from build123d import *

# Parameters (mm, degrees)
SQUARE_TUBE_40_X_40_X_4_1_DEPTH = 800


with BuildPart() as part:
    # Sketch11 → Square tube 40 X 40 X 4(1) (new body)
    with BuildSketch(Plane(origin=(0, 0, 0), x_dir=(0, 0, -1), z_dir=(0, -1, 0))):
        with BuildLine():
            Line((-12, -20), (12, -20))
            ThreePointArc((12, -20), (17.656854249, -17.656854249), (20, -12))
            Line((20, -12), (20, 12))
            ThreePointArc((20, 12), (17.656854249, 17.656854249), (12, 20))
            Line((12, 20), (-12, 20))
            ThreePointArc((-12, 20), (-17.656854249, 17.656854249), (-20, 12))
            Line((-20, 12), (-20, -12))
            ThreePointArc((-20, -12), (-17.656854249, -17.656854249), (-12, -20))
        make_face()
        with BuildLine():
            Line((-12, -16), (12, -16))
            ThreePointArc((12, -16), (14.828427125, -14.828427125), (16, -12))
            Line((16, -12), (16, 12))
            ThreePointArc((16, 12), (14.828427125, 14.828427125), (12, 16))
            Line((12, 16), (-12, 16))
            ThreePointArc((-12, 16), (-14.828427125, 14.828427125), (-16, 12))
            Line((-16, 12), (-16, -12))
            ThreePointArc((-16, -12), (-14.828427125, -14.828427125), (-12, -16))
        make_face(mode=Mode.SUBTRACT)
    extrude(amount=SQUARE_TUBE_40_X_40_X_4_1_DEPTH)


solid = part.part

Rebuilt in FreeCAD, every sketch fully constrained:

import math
import FreeCAD as App
import Part
import Sketcher

V = App.Vector
Q = App.Units.Quantity

doc = App.newDocument("Part")
body = doc.addObject("PartDesign::Body", "Body")

# Sketch on XZ plane
sketch1 = body.newObject("Sketcher::SketchObject", "Sketch")
sketch1.AttachmentSupport = (doc.getObject("XZ_Plane"), [""])
sketch1.MapMode = "FlatFace"
sketch1.addGeometry([
    Part.LineSegment(V(-20, 12, 0), V(-20, -12, 0)),  # 0
    Part.ArcOfCircle(Part.Circle(V(-12, -12, 0), V(0, 0, 1), 8), math.radians(-180), math.radians(-90)),  # 1
    Part.LineSegment(V(-12, -20, 0), V(12, -20, 0)),  # 2
    Part.ArcOfCircle(Part.Circle(V(12, -12, 0), V(0, 0, 1), 8), math.radians(-90), math.radians(0)),  # 3
    Part.LineSegment(V(20, -12, 0), V(20, 12, 0)),  # 4
    Part.ArcOfCircle(Part.Circle(V(12, 12, 0), V(0, 0, 1), 8), math.radians(0), math.radians(90)),  # 5
    Part.LineSegment(V(12, 20, 0), V(-12, 20, 0)),  # 6
    Part.ArcOfCircle(Part.Circle(V(-12, 12, 0), V(0, 0, 1), 8), math.radians(90), math.radians(180)),  # 7
    Part.LineSegment(V(-16, -12, 0), V(-16, 12, 0)),  # 8
    Part.ArcOfCircle(Part.Circle(V(-12, 12, 0), V(0, 0, 1), 4), math.radians(90), math.radians(180)),  # 9
    Part.LineSegment(V(-12, 16, 0), V(12, 16, 0)),  # 10
    Part.ArcOfCircle(Part.Circle(V(12, 12, 0), V(0, 0, 1), 4), math.radians(0), math.radians(90)),  # 11
    Part.LineSegment(V(16, 12, 0), V(16, -12, 0)),  # 12
    Part.ArcOfCircle(Part.Circle(V(12, -12, 0), V(0, 0, 1), 4), math.radians(-90), math.radians(0)),  # 13
    Part.LineSegment(V(12, -16, 0), V(-12, -16, 0)),  # 14
    Part.ArcOfCircle(Part.Circle(V(-12, -12, 0), V(0, 0, 1), 4), math.radians(180), math.radians(270)),  # 15
], False)
sketch1.addConstraint([
    Sketcher.Constraint("Tangent", 0, 2, 1, 1),
    Sketcher.Constraint("Tangent", 1, 2, 2, 1),
    Sketcher.Constraint("Tangent", 2, 2, 3, 1),
    Sketcher.Constraint("Tangent", 3, 2, 4, 1),
    Sketcher.Constraint("Tangent", 4, 2, 5, 1),
    Sketcher.Constraint("Tangent", 5, 2, 6, 1),
    Sketcher.Constraint("Tangent", 6, 2, 7, 1),
    Sketcher.Constraint("Tangent", 7, 2, 0, 1),
    Sketcher.Constraint("Tangent", 8, 2, 9, 2),
    Sketcher.Constraint("Tangent", 9, 1, 10, 1),
    Sketcher.Constraint("Tangent", 10, 2, 11, 2),
    Sketcher.Constraint("Tangent", 11, 1, 12, 1),
    Sketcher.Constraint("Tangent", 12, 2, 13, 2),
    Sketcher.Constraint("Tangent", 13, 1, 14, 1),
    Sketcher.Constraint("Tangent", 14, 2, 15, 2),
    Sketcher.Constraint("Tangent", 15, 1, 8, 1),
    Sketcher.Constraint("Vertical", 0),
    Sketcher.Constraint("Horizontal", 2),
    Sketcher.Constraint("Vertical", 4),
    Sketcher.Constraint("Horizontal", 6),
    Sketcher.Constraint("Vertical", 8),
    Sketcher.Constraint("Horizontal", 10),
    Sketcher.Constraint("Vertical", 12),
    Sketcher.Constraint("Horizontal", 14),
    Sketcher.Constraint("Coincident", 9, 3, 7, 3),
    Sketcher.Constraint("Coincident", 11, 3, 5, 3),
    Sketcher.Constraint("Coincident", 13, 3, 3, 3),
    Sketcher.Constraint("Equal", 1, 3),
    Sketcher.Constraint("Equal", 3, 5),
    Sketcher.Constraint("Equal", 5, 7),
    Sketcher.Constraint("Equal", 13, 15),
    Sketcher.Constraint("Symmetric", 1, 3, 5, 3, -1, 1),
    Sketcher.Constraint("Equal", 14, 0),
    Sketcher.Constraint("Radius", 1, Q("8 mm")),
    Sketcher.Constraint("Radius", 9, Q("4 mm")),
    Sketcher.Constraint("DistanceX", 2, 1, 2, 2, Q("24 mm")),
])
pad1 = body.newObject("PartDesign::Pad", "Pad")
pad1.Profile = sketch1
pad1.Length = 800

doc.recompute()
